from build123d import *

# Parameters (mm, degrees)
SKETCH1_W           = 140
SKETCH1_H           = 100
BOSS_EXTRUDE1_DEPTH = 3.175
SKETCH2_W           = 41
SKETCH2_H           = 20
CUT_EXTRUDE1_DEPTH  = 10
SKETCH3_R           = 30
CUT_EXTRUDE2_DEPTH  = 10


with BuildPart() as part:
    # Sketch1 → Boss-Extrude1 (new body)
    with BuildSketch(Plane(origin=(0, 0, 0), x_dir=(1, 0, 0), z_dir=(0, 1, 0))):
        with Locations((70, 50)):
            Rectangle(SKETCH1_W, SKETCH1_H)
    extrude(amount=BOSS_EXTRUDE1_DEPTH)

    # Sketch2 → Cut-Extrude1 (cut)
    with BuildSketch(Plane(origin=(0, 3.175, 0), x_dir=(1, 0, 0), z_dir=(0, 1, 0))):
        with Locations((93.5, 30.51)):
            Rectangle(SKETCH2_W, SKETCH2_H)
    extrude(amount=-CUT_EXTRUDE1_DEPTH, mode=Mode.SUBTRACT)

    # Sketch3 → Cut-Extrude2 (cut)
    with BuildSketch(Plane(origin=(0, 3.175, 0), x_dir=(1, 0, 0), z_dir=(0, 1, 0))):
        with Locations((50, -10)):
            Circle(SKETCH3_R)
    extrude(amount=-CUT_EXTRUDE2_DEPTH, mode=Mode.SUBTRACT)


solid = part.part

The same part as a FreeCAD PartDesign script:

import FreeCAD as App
import Part
import Sketcher
from FreeCAD import Vector
Q = App.Units.Quantity


def add_polygon(sketch, points):
    """Adds a closed chain of lines whose ends are joined by coincident constraints."""
    first, n = sketch.GeometryCount, len(points)
    for a, b in zip(points, points[1:] + points[:1]):
        sketch.addGeometry(Part.LineSegment(App.Vector(*a, 0), App.Vector(*b, 0)), False)
    for i in range(n):
        sketch.addConstraint(Sketcher.Constraint("Coincident", first + i, 2, first + (i + 1) % n, 1))

doc = App.newDocument("Part")
body = doc.addObject("PartDesign::Body", "Body")

sketch1 = body.newObject("Sketcher::SketchObject", "Sketch")
sketch1.AttachmentSupport = (doc.getObject("XZ_Plane"), [""])
sketch1.MapMode = "FlatFace"
add_polygon(sketch1, [(0, -100), (0, 0), (140, 0), (140, -100)])
sketch1.addConstraint(Sketcher.Constraint("Vertical", 0))
sketch1.addConstraint(Sketcher.Constraint("Horizontal", 1))
sketch1.addConstraint(Sketcher.Constraint("Vertical", 2))
sketch1.addConstraint(Sketcher.Constraint("Horizontal", 3))
sketch1.addConstraint(Sketcher.Constraint("Coincident", 0, 2, -1, 1))
sketch1.addConstraint(Sketcher.Constraint("DistanceX", 1, 1, 1, 2, Q("140 mm")))
sketch1.addConstraint(Sketcher.Constraint("DistanceY", 0, 1, 0, 2, Q("100 mm")))
pad1 = body.newObject("PartDesign::Pad", "Pad")
pad1.Profile = sketch1
pad1.Length = 3.175
pad1.Reversed = True

sketch2 = body.newObject("Sketcher::SketchObject", "Sketch001")
sketch2.AttachmentSupport = (doc.getObject("XZ_Plane"), [""])
sketch2.MapMode = "FlatFace"
sketch2.AttachmentOffset = App.Placement(Vector(0, 0, -3.175), App.Rotation())
add_polygon(sketch2, [(73, -41), (73, -21), (114, -21), (114, -41)])
sketch2.addConstraint(Sketcher.Constraint("Vertical", 0))
sketch2.addConstraint(Sketcher.Constraint("Horizontal", 1))
sketch2.addConstraint(Sketcher.Constraint("Vertical", 2))
sketch2.addConstraint(Sketcher.Constraint("Horizontal", 3))
sketch2.addConstraint(Sketcher.Constraint("DistanceX", 1, 1, 1, 2, Q("41 mm")))
sketch2.addConstraint(Sketcher.Constraint("DistanceY", 0, 1, 0, 2, Q("20 mm")))
sketch2.addConstraint(Sketcher.Constraint("DistanceX", -1, 1, 0, 2, Q("73 mm")))
sketch2.addConstraint(Sketcher.Constraint("DistanceY", 0, 2, -1, 1, Q("20.51 mm")))
pocket1 = body.newObject("PartDesign::Pocket", "Pocket")
pocket1.Profile = sketch2
pocket1.Length = 10
pocket1.Reversed = True

sketch3 = body.newObject("Sketcher::SketchObject", "Sketch002")
sketch3.AttachmentSupport = (doc.getObject("XZ_Plane"), [""])
sketch3.MapMode = "FlatFace"
sketch3.AttachmentOffset = App.Placement(Vector(0, 0, -3.175), App.Rotation())
sketch3.addGeometry(Part.Circle(Vector(50, 10, 0), Vector(0, 0, 1), 30), False)
sketch3.addConstraint(Sketcher.Constraint("Diameter", 0, Q("60 mm")))
sketch3.addConstraint(Sketcher.Constraint("DistanceX", -1, 1, 0, 3, Q("50 mm")))
sketch3.addConstraint(Sketcher.Constraint("DistanceY", -1, 1, 0, 3, Q("10 mm")))
pocket2 = body.newObject("PartDesign::Pocket", "Pocket001")
pocket2.Profile = sketch3
pocket2.Length = 10
pocket2.Reversed = True

doc.recompute()
